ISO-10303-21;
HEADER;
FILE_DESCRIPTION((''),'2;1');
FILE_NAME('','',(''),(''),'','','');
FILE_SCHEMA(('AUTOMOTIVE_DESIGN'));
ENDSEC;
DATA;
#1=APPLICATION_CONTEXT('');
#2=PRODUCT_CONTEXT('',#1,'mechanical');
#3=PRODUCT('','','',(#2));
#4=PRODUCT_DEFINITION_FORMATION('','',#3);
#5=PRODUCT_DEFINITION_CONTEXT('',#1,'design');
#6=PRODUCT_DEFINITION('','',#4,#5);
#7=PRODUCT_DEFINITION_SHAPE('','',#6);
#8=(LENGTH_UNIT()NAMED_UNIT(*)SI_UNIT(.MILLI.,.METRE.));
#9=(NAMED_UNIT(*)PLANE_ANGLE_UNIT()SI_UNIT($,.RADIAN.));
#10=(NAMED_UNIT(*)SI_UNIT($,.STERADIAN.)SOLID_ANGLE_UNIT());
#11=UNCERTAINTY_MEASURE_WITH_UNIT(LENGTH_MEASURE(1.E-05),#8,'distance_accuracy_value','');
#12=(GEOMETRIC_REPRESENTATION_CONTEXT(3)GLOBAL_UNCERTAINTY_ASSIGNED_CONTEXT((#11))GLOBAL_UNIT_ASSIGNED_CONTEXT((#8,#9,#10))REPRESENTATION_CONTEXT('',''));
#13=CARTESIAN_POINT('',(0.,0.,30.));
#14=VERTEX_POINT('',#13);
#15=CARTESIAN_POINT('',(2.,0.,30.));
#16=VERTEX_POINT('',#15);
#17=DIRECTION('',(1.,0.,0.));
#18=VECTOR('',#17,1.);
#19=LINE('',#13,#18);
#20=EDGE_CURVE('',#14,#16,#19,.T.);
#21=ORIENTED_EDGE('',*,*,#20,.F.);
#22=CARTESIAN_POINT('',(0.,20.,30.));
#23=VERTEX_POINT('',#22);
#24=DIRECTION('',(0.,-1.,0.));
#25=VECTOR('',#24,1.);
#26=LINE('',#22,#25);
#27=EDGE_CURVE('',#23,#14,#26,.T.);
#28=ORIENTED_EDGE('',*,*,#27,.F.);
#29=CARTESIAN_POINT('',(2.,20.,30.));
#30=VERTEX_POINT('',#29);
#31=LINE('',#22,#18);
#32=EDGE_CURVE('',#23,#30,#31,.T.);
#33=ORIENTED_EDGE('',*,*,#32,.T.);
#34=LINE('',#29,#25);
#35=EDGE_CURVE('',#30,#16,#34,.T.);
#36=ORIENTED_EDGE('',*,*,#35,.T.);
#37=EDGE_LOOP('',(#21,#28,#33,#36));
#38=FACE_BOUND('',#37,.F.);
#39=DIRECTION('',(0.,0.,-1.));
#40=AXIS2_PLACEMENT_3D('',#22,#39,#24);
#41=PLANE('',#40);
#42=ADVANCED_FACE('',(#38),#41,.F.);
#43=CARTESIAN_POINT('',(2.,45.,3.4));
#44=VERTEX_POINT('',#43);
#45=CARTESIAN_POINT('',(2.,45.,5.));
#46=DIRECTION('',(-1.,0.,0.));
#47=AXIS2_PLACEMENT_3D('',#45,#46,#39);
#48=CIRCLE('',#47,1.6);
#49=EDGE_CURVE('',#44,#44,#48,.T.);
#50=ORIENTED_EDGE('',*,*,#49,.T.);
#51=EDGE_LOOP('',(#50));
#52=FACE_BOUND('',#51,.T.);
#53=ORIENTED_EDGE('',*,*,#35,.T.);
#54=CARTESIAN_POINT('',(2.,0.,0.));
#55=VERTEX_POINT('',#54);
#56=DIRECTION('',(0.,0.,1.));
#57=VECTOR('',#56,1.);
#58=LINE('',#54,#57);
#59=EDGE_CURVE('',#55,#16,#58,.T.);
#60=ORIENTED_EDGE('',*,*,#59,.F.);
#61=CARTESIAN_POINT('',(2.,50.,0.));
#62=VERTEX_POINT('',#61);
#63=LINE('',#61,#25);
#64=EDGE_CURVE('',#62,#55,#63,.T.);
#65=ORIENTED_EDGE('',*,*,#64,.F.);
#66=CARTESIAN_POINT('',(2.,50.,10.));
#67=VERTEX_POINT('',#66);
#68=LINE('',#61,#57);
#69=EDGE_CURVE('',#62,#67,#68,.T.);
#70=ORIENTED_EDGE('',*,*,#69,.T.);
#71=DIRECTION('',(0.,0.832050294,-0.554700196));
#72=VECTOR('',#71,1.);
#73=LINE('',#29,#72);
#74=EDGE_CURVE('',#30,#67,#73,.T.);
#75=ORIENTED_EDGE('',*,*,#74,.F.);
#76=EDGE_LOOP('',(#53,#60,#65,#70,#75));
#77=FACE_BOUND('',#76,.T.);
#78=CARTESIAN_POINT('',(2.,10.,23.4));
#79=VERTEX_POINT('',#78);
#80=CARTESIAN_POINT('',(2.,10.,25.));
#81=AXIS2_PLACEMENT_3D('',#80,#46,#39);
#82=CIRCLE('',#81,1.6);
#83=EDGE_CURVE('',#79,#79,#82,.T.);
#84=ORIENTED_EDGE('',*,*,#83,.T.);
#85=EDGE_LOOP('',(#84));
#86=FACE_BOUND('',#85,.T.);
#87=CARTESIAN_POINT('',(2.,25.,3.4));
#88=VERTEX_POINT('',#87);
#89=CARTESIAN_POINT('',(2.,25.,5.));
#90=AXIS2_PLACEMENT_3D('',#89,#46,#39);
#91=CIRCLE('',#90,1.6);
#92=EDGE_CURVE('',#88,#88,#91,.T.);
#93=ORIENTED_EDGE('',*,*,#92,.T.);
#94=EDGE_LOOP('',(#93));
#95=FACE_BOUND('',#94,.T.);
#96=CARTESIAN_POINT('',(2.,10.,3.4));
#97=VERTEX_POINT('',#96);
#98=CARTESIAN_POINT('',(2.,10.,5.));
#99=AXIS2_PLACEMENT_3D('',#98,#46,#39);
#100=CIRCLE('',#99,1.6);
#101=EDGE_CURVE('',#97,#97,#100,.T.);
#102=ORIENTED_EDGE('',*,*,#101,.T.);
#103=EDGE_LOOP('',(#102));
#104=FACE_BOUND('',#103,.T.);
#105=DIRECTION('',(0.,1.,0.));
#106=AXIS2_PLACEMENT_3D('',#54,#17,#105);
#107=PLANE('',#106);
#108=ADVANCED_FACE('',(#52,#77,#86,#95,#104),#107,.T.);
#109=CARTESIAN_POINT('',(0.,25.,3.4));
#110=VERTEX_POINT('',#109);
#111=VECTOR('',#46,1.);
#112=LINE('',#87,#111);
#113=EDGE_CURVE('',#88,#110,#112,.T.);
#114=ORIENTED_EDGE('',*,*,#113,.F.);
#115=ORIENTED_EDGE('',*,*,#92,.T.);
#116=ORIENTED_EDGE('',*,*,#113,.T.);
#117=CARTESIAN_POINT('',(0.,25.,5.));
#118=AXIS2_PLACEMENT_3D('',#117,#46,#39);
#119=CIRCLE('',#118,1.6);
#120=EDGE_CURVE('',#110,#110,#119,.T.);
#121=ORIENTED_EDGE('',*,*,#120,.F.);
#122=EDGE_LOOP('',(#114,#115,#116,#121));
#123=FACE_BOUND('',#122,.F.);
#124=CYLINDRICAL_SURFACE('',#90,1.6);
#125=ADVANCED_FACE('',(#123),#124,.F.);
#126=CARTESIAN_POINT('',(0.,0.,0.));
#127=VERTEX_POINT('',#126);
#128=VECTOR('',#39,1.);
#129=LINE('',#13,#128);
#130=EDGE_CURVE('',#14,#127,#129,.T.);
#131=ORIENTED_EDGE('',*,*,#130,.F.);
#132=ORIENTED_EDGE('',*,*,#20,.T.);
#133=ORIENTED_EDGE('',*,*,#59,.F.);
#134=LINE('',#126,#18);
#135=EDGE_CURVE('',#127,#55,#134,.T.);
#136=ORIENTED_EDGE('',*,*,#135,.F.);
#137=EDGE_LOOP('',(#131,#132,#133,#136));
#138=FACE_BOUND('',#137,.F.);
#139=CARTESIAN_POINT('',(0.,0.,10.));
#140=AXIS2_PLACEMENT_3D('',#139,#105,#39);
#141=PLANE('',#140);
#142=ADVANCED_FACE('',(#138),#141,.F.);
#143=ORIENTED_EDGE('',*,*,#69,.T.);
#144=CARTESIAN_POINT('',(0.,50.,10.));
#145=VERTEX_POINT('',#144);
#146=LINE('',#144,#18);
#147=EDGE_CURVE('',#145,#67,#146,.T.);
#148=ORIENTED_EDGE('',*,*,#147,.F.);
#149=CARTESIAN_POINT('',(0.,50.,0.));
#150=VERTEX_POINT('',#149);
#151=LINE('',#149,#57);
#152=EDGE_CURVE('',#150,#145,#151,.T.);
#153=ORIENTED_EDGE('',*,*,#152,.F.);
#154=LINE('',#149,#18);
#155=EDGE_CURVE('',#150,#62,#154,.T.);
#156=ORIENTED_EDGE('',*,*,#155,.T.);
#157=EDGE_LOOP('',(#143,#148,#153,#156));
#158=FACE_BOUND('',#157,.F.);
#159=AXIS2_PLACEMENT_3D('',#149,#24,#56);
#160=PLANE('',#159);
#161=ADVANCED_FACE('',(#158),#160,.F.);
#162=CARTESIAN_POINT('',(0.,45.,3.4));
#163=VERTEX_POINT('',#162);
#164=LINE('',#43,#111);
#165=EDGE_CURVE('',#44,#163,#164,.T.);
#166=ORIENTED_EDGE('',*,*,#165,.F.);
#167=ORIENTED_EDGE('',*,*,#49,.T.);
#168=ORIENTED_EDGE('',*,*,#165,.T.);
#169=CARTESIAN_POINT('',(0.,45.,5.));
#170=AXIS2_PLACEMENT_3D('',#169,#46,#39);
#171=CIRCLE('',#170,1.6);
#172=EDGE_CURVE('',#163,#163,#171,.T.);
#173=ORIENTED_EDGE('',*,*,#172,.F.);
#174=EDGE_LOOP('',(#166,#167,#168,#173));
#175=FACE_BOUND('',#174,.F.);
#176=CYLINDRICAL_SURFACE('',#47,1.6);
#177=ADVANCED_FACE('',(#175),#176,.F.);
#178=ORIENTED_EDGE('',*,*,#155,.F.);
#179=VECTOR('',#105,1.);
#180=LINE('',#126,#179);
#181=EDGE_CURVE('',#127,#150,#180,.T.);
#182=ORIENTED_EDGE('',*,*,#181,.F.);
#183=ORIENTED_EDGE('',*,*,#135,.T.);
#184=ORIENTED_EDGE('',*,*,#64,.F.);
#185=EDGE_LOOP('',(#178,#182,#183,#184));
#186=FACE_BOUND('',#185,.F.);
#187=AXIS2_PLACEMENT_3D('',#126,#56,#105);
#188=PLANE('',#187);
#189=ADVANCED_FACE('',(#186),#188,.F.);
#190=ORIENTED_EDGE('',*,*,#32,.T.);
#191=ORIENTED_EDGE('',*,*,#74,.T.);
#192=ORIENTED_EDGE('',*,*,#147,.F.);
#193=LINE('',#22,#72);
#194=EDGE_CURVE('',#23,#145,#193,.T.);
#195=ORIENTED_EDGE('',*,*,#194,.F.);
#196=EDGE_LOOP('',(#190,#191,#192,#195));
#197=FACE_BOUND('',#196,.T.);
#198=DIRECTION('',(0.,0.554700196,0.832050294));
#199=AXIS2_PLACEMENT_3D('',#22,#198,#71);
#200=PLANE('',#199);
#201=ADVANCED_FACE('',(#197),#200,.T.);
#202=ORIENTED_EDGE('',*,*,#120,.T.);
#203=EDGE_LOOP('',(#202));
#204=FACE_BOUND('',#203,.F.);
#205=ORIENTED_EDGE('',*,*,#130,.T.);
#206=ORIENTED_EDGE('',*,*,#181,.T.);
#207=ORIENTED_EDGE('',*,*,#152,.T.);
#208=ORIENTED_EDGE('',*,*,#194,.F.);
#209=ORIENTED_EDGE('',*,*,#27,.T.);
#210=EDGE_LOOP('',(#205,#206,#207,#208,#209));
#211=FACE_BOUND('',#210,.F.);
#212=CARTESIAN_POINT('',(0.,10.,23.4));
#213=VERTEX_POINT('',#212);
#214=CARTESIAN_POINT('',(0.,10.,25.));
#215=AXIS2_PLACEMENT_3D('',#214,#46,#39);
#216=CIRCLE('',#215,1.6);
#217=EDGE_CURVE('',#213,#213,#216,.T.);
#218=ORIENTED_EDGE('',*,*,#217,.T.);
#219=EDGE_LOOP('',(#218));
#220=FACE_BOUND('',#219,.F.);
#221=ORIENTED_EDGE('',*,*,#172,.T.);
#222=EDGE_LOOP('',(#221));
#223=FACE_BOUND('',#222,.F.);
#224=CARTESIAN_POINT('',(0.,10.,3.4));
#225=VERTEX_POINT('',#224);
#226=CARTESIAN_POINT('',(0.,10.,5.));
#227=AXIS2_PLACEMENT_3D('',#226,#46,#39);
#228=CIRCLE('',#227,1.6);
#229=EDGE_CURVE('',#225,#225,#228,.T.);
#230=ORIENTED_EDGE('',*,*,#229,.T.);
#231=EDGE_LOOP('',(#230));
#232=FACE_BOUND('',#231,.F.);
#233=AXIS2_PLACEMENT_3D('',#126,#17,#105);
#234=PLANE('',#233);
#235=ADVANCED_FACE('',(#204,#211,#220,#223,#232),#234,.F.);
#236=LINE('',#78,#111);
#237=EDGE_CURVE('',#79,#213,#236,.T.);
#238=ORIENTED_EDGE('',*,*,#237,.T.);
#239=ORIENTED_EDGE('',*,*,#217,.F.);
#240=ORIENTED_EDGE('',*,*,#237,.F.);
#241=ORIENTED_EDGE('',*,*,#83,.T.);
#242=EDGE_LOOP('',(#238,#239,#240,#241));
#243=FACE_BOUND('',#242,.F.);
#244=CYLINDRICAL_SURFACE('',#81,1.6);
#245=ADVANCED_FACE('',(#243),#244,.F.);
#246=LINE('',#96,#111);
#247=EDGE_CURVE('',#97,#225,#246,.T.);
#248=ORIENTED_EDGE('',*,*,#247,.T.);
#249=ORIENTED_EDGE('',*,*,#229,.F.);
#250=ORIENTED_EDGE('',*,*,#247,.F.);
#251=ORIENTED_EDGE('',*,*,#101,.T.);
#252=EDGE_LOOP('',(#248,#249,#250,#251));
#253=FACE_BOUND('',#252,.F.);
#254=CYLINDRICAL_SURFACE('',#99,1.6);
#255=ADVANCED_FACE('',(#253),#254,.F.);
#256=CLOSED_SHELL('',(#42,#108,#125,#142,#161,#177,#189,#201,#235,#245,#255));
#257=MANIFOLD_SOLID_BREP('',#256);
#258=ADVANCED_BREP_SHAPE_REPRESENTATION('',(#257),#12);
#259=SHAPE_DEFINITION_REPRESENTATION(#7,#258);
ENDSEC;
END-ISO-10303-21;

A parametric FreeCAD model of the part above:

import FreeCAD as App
import Part
import Sketcher
from FreeCAD import Vector
Q = App.Units.Quantity

doc = App.newDocument("Part")
body = doc.addObject("PartDesign::Body", "Body")

sketch1 = body.newObject("Sketcher::SketchObject", "Sketch")
sketch1.AttachmentSupport = (doc.getObject("YZ_Plane"), [""])
sketch1.MapMode = "FlatFace"
sketch1.addGeometry([
    Part.LineSegment(Vector(0, 30, 0), Vector(0, 0, 0)),
    Part.LineSegment(Vector(0, 0, 0), Vector(50, 0, 0)),
    Part.LineSegment(Vector(50, 0, 0), Vector(50, 10, 0)),
    Part.LineSegment(Vector(50, 10, 0), Vector(20, 30, 0)),
    Part.LineSegment(Vector(20, 30, 0), Vector(0, 30, 0)),
], False)
sketch1.addConstraint([
    Sketcher.Constraint("Coincident", 0, 2, 1, 1),
    Sketcher.Constraint("Coincident", 1, 2, 2, 1),
    Sketcher.Constraint("Coincident", 2, 2, 3, 1),
    Sketcher.Constraint("Coincident", 3, 2, 4, 1),
    Sketcher.Constraint("Coincident", 4, 2, 0, 1),
    Sketcher.Constraint("Vertical", 0),
    Sketcher.Constraint("Horizontal", 1),
    Sketcher.Constraint("Vertical", 2),
    Sketcher.Constraint("Horizontal", 4),
    Sketcher.Constraint("Coincident", 0, 2, -1, 1),
    Sketcher.Constraint("DistanceX", 4, 2, 4, 1, Q("20 mm")),
    Sketcher.Constraint("DistanceY", 0, 2, 0, 1, Q("30 mm")),
    Sketcher.Constraint("DistanceY", 2, 1, 2, 2, Q("10 mm")),
    Sketcher.Constraint("DistanceX", 3, 2, 2, 2, Q("30 mm")),
])
pad1 = body.newObject("PartDesign::Pad", "Pad")
pad1.Profile = sketch1
pad1.Length = 2

sketch2 = body.newObject("Sketcher::SketchObject", "Sketch001")
sketch2.AttachmentSupport = (doc.getObject("YZ_Plane"), [""])
sketch2.MapMode = "FlatFace"
sketch2.AttachmentOffset = App.Placement(Vector(0, 0, 2), App.Rotation())
sketch2.addGeometry([
    Part.Circle(Vector(10, 25, 0), Vector(0, 0, 1), 1.6),
    Part.Circle(Vector(10, 5, 0), Vector(0, 0, 1), 1.6),
    Part.Circle(Vector(25, 5, 0), Vector(0, 0, 1), 1.6),
    Part.Circle(Vector(45, 5, 0), Vector(0, 0, 1), 1.6),
], False)
sketch2.addConstraint([
    Sketcher.Constraint("Equal", 0, 1),
    Sketcher.Constraint("Equal", 1, 2),
    Sketcher.Constraint("Equal", 2, 3),
    Sketcher.Constraint("Horizontal", 1, 3, 2, 3),
    Sketcher.Constraint("Horizontal", 2, 3, 3, 3),
    Sketcher.Constraint("Vertical", 0, 3, 1, 3),
    Sketcher.Constraint("Diameter", 0, Q("3.2 mm")),
    Sketcher.Constraint("DistanceX", -1, 1, 0, 3, Q("10 mm")),
    Sketcher.Constraint("DistanceY", -1, 1, 0, 3, Q("25 mm")),
    Sketcher.Constraint("DistanceY", -1, 1, 1, 3, Q("5 mm")),
    Sketcher.Constraint("DistanceX", -1, 1, 2, 3, Q("25 mm")),
    Sketcher.Constraint("DistanceX", -1, 1, 3, 3, Q("45 mm")),
])
doc.recompute()
hole = body.newObject("PartDesign::Hole", "Hole")
hole.Profile = sketch2
hole.ThreadType = "None"
hole.Diameter = 3.2
hole.DepthType = "ThroughAll"

doc.recompute()
